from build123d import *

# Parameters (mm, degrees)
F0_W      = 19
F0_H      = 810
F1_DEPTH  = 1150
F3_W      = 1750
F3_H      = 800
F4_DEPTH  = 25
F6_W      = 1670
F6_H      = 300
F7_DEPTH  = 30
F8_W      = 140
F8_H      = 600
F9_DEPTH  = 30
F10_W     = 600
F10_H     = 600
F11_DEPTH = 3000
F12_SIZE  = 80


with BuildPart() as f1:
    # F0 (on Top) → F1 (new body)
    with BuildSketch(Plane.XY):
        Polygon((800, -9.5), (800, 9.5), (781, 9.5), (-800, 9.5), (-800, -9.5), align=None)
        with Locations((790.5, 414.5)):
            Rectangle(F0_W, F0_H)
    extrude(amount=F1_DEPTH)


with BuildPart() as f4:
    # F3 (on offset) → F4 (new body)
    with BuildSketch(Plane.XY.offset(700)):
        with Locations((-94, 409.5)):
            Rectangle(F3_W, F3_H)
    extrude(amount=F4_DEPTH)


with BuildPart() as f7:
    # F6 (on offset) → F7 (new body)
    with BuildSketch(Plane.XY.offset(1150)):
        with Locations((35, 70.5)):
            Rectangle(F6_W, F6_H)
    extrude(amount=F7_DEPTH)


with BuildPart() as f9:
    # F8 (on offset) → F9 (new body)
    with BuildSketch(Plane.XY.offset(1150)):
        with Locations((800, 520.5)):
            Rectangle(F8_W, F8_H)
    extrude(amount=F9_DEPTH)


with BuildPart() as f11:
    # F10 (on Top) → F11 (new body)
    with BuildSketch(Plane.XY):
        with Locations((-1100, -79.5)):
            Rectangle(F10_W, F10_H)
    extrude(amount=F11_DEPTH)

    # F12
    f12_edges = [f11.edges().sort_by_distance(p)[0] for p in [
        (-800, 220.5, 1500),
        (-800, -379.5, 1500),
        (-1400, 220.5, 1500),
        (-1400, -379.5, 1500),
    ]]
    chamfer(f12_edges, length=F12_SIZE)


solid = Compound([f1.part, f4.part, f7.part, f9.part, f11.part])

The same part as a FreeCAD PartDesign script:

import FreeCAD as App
import Part
import Sketcher
from FreeCAD import Vector
Q = App.Units.Quantity


def edges_at(feature, points):
    """Names of the edges that pass closest to the given points."""
    edges = feature.Shape.Edges
    near = lambda p: min(range(len(edges)), key=lambda i: edges[i].distToShape(Part.Vertex(*p))[0])
    return sorted({f"Edge{near(p) + 1}" for p in points})


def add_polygon(sketch, points):
    """Adds a closed chain of lines whose ends are joined by coincident constraints."""
    first, n = sketch.GeometryCount, len(points)
    for a, b in zip(points, points[1:] + points[:1]):
        sketch.addGeometry(Part.LineSegment(App.Vector(*a, 0), App.Vector(*b, 0)), False)
    for i in range(n):
        sketch.addConstraint(Sketcher.Constraint("Coincident", first + i, 2, first + (i + 1) % n, 1))

doc = App.newDocument("Part")
body = doc.addObject("PartDesign::Body", "Body")

sketch1 = doc.addObject("Sketcher::SketchObject", "Sketch")
body.addObject(sketch1)
sketch1.AttachmentSupport = (doc.XY_Plane, [""])
sketch1.MapMode = "FlatFace"
add_polygon(sketch1, [(800, -10), (800, 820), (781, 820), (781, 10), (-800, 10), (-800, -10)])
sketch1.addConstraint([
    Sketcher.Constraint("Vertical", 0),
    Sketcher.Constraint("Horizontal", 1),
    Sketcher.Constraint("Vertical", 2),
    Sketcher.Constraint("Horizontal", 3),
    Sketcher.Constraint("Vertical", 4),
    Sketcher.Constraint("Horizontal", 5),
    Sketcher.Constraint("Symmetric", 3, 2, 5, 2, -1, 1),
    Sketcher.Constraint("Equal", 1, 4),
    Sketcher.Constraint("DistanceX", 1, 2, 1, 1, Q("19 mm")),
    Sketcher.Constraint("DistanceX", 3, 2, 3, 1, Q("1581 mm")),
    Sketcher.Constraint("DistanceY", 0, 1, 0, 2, Q("829 mm")),
])
pad1 = doc.addObject("PartDesign::Pad", "Pad")
body.addObject(pad1)
pad1.Profile = sketch1
pad1.Length = 1150
body2 = doc.addObject("PartDesign::Body", "Body001")

sketch2 = doc.addObject("Sketcher::SketchObject", "Sketch001")
body2.addObject(sketch2)
sketch2.AttachmentSupport = (doc.getObject("XY_Plane001"), [""])
sketch2.MapMode = "FlatFace"
sketch2.AttachmentOffset = App.Placement(Vector(0, 0, 700), App.Rotation())
add_polygon(sketch2, [(-969, 810), (-969, 10), (781, 10), (781, 810)])
sketch2.addConstraint([
    Sketcher.Constraint("Vertical", 0),
    Sketcher.Constraint("Horizontal", 1),
    Sketcher.Constraint("Vertical", 2),
    Sketcher.Constraint("Horizontal", 3),
    Sketcher.Constraint("DistanceX", 1, 1, 1, 2, Q("1750 mm")),
    Sketcher.Constraint("DistanceY", 0, 2, 0, 1, Q("800 mm")),
    Sketcher.Constraint("DistanceX", 0, 2, -1, 1, Q("969 mm")),
    Sketcher.Constraint("DistanceY", -1, 1, 0, 2, Q("9.5 mm")),
])
pad2 = doc.addObject("PartDesign::Pad", "Pad001")
body2.addObject(pad2)
pad2.Profile = sketch2
pad2.Length = 25
body3 = doc.addObject("PartDesign::Body", "Body002")

sketch3 = doc.addObject("Sketcher::SketchObject", "Sketch002")
body3.addObject(sketch3)
sketch3.AttachmentSupport = (doc.getObject("XY_Plane002"), [""])
sketch3.MapMode = "FlatFace"
sketch3.AttachmentOffset = App.Placement(Vector(0, 0, 1150), App.Rotation())
add_polygon(sketch3, [(-800, 220), (-800, -80), (870, -80), (870, 220)])
sketch3.addConstraint([
    Sketcher.Constraint("Vertical", 0),
    Sketcher.Constraint("Horizontal", 1),
    Sketcher.Constraint("Vertical", 2),
    Sketcher.Constraint("Horizontal", 3),
    Sketcher.Constraint("DistanceX", 1, 1, 1, 2, Q("1670 mm")),
    Sketcher.Constraint("DistanceY", 0, 2, 0, 1, Q("300 mm")),
    Sketcher.Constraint("DistanceX", 0, 2, -1, 1, Q("800 mm")),
    Sketcher.Constraint("DistanceY", 0, 2, -1, 1, Q("79.5 mm")),
])
pad3 = doc.addObject("PartDesign::Pad", "Pad002")
body3.addObject(pad3)
pad3.Profile = sketch3
pad3.Length = 30
body4 = doc.addObject("PartDesign::Body", "Body003")

sketch4 = doc.addObject("Sketcher::SketchObject", "Sketch003")
body4.addObject(sketch4)
sketch4.AttachmentSupport = (doc.getObject("XY_Plane003"), [""])
sketch4.MapMode = "FlatFace"
sketch4.AttachmentOffset = App.Placement(Vector(0, 0, 1150), App.Rotation())
add_polygon(sketch4, [(730, 820), (730, 220), (870, 220), (870, 820)])
sketch4.addConstraint([
    Sketcher.Constraint("Vertical", 0),
    Sketcher.Constraint("Horizontal", 1),
    Sketcher.Constraint("Vertical", 2),
    Sketcher.Constraint("Horizontal", 3),
    Sketcher.Constraint("DistanceX", 1, 1, 1, 2, Q("140 mm")),
    Sketcher.Constraint("DistanceY", 0, 2, 0, 1, Q("600 mm")),
    Sketcher.Constraint("DistanceX", -1, 1, 0, 2, Q("730 mm")),
    Sketcher.Constraint("DistanceY", -1, 1, 0, 2, Q("220.5 mm")),
])
pad4 = doc.addObject("PartDesign::Pad", "Pad003")
body4.addObject(pad4)
pad4.Profile = sketch4
pad4.Length = 30
body5 = doc.addObject("PartDesign::Body", "Body004")

sketch5 = doc.addObject("Sketcher::SketchObject", "Sketch004")
body5.addObject(sketch5)
sketch5.AttachmentSupport = (doc.getObject("XY_Plane004"), [""])
sketch5.MapMode = "FlatFace"
add_polygon(sketch5, [(-1400, 220), (-1400, -380), (-800, -380), (-800, 220)])
sketch5.addConstraint([
    Sketcher.Constraint("Vertical", 0),
    Sketcher.Constraint("Horizontal", 1),
    Sketcher.Constraint("Vertical", 2),
    Sketcher.Constraint("Horizontal", 3),
    Sketcher.Constraint("Equal", 3, 0),
    Sketcher.Constraint("DistanceX", 1, 1, 1, 2, Q("600 mm")),
    Sketcher.Constraint("DistanceX", 0, 2, -1, 1, Q("1400 mm")),
    Sketcher.Constraint("DistanceY", 0, 2, -1, 1, Q("379.5 mm")),
])
pad5 = doc.addObject("PartDesign::Pad", "Pad004")
body5.addObject(pad5)
pad5.Profile = sketch5
pad5.Length = 3000
doc.recompute()

chamfer = doc.addObject("PartDesign::Chamfer", "Chamfer")
body5.addObject(chamfer)
chamfer.Base = (pad5, edges_at(pad5, [
    (-800, 220.5, 1500),
    (-800, -379.5, 1500),
    (-1400, 220.5, 1500),
    (-1400, -379.5, 1500),
]))
chamfer.Size = 80

doc.recompute()
